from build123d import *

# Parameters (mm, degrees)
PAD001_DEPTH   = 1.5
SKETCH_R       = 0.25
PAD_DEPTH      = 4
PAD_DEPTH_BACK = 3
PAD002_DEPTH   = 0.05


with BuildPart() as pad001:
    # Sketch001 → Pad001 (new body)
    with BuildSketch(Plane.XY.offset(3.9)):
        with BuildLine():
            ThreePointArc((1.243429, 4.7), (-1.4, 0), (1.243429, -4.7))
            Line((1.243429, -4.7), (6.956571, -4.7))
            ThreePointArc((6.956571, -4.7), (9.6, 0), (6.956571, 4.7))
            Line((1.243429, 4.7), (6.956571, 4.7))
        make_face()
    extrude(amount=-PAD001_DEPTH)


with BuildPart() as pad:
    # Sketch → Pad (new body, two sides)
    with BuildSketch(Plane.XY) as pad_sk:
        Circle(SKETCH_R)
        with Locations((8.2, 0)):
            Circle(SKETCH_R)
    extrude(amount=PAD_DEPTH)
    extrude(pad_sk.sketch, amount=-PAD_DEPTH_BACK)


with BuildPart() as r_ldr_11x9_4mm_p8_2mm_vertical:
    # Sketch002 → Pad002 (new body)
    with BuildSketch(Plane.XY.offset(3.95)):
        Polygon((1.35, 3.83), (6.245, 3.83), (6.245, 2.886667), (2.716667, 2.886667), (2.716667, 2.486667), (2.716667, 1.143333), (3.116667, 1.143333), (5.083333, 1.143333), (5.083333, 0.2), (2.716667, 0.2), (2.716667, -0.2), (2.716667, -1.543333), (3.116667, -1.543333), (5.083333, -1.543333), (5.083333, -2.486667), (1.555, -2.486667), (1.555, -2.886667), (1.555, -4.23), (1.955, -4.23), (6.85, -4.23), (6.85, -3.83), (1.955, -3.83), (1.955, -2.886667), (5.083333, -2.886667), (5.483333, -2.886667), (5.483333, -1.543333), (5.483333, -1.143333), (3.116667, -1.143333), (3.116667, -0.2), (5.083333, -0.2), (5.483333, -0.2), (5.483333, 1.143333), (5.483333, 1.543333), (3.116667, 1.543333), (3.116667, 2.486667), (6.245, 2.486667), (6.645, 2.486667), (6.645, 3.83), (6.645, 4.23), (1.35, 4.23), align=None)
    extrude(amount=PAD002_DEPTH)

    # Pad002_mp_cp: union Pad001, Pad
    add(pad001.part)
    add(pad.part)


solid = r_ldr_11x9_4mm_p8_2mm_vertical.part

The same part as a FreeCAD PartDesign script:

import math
import FreeCAD as App
import Part
import Sketcher

V = App.Vector
Q = App.Units.Quantity

doc = App.newDocument("Part")
body = doc.addObject("PartDesign::Body", "Body")

sketch1 = body.newObject("Sketcher::SketchObject", "Sketch")
sketch1.AttachmentSupport = (doc.getObject("XY_Plane"), [""])
sketch1.MapMode = "FlatFace"
sketch1.AttachmentOffset = App.Placement(V(0, 0, 3.9), App.Rotation())
sketch1.addGeometry([
    Part.ArcOfCircle(Part.Circle(V(4.1, 0, 0), V(0, 0, 1), 5.5), math.radians(121.290438), math.radians(238.709562)),
    Part.LineSegment(V(1.243429, -4.7, 0), V(6.956571, -4.7, 0)),
    Part.ArcOfCircle(Part.Circle(V(4.1, 0, 0), V(0, 0, 1), 5.5), math.radians(-58.709562), math.radians(58.709562)),
    Part.LineSegment(V(6.956571, 4.7, 0), V(1.243429, 4.7, 0)),
], False)
sketch1.addConstraint([
    Sketcher.Constraint("Coincident", 0, 2, 1, 1),
    Sketcher.Constraint("Coincident", 1, 2, 2, 1),
    Sketcher.Constraint("Coincident", 2, 2, 3, 1),
    Sketcher.Constraint("Coincident", 3, 2, 0, 1),
    Sketcher.Constraint("Horizontal", 1),
    Sketcher.Constraint("Horizontal", 3),
    Sketcher.Constraint("Coincident", 2, 3, 0, 3),
    Sketcher.Constraint("Equal", 0, 2),
    Sketcher.Constraint("Symmetric", 1, 2, 2, 2, -1),
    Sketcher.Constraint("Radius", 0, Q("5.5 mm")),
    Sketcher.Constraint("DistanceX", -1, 1, 0, 3, Q("4.1 mm")),
    Sketcher.Constraint("DistanceY", 0, 2, -1, 1, Q("4.7 mm")),
])
pad1 = body.newObject("PartDesign::Pad", "Pad")
pad1.Profile = sketch1
pad1.Length = 1.5
pad1.Reversed = True
body2 = doc.addObject("PartDesign::Body", "Body001")
body2.AllowCompound = True

sketch2 = body2.newObject("Sketcher::SketchObject", "Sketch001")
sketch2.AttachmentSupport = (doc.getObject("XY_Plane001"), [""])
sketch2.MapMode = "FlatFace"
sketch2.addGeometry([
    Part.Circle(V(0, 0, 0), V(0, 0, 1), 0.25),
    Part.Circle(V(8.2, 0, 0), V(0, 0, 1), 0.25),
], False)
sketch2.addConstraint([
    Sketcher.Constraint("Coincident", 0, 3, -1, 1),
    Sketcher.Constraint("Equal", 0, 1),
    Sketcher.Constraint("PointOnObject", 1, 3, -1),
    Sketcher.Constraint("Diameter", 0, Q("0.5 mm")),
    Sketcher.Constraint("DistanceX", -1, 1, 1, 3, Q("8.2 mm")),
])
pad2 = body2.newObject("PartDesign::Pad", "Pad001")
pad2.Profile = sketch2
pad2.Type = "TwoLengths"
pad2.Length = 4
pad2.Length2 = 3
body3 = doc.addObject("PartDesign::Body", "Body002")
body3.AllowCompound = True

sketch3 = body3.newObject("Sketcher::SketchObject", "Sketch002")
sketch3.AttachmentSupport = (doc.getObject("XY_Plane002"), [""])
sketch3.MapMode = "FlatFace"
sketch3.AttachmentOffset = App.Placement(V(0, 0, 3.95), App.Rotation())
sketch3.addGeometry([
    Part.LineSegment(V(1.35, 3.83, 0), V(6.245, 3.83, 0)),
    Part.LineSegment(V(6.245, 3.83, 0), V(6.245, 2.886667, 0)),
    Part.LineSegment(V(6.245, 2.886667, 0), V(2.716667, 2.886667, 0)),
    Part.LineSegment(V(2.716667, 2.886667, 0), V(2.716667, 1.143333, 0)),
    Part.LineSegment(V(2.716667, 1.143333, 0), V(5.083333, 1.143333, 0)),
    Part.LineSegment(V(5.083333, 1.143333, 0), V(5.083333, 0.2, 0)),
    Part.LineSegment(V(5.083333, 0.2, 0), V(2.716667, 0.2, 0)),
    Part.LineSegment(V(2.716667, 0.2, 0), V(2.716667, -1.543333, 0)),
    Part.LineSegment(V(2.716667, -1.543333, 0), V(5.083333, -1.543333, 0)),
    Part.LineSegment(V(5.083333, -1.543333, 0), V(5.083333, -2.486667, 0)),
    Part.LineSegment(V(5.083333, -2.486667, 0), V(1.555, -2.486667, 0)),
    Part.LineSegment(V(1.555, -2.486667, 0), V(1.555, -4.23, 0)),
    Part.LineSegment(V(1.555, -4.23, 0), V(6.85, -4.23, 0)),
    Part.LineSegment(V(6.85, -4.23, 0), V(6.85, -3.83, 0)),
    Part.LineSegment(V(6.85, -3.83, 0), V(1.955, -3.83, 0)),
    Part.LineSegment(V(1.955, -3.83, 0), V(1.955, -2.886667, 0)),
    Part.LineSegment(V(1.955, -2.886667, 0), V(5.483333, -2.886667, 0)),
    Part.LineSegment(V(5.483333, -2.886667, 0), V(5.483333, -1.143333, 0)),
    Part.LineSegment(V(5.483333, -1.143333, 0), V(3.116667, -1.143333, 0)),
    Part.LineSegment(V(3.116667, -1.143333, 0), V(3.116667, -0.2, 0)),
    Part.LineSegment(V(3.116667, -0.2, 0), V(5.483333, -0.2, 0)),
    Part.LineSegment(V(5.483333, -0.2, 0), V(5.483333, 1.543333, 0)),
    Part.LineSegment(V(5.483333, 1.543333, 0), V(3.116667, 1.543333, 0)),
    Part.LineSegment(V(3.116667, 1.543333, 0), V(3.116667, 2.486667, 0)),
    Part.LineSegment(V(3.116667, 2.486667, 0), V(6.645, 2.486667, 0)),
    Part.LineSegment(V(6.645, 2.486667, 0), V(6.645, 4.23, 0)),
    Part.LineSegment(V(6.645, 4.23, 0), V(1.35, 4.23, 0)),
    Part.LineSegment(V(1.35, 4.23, 0), V(1.35, 3.83, 0)),
], False)
sketch3.addConstraint([
    Sketcher.Constraint("Coincident", 0, 2, 1, 1),
    Sketcher.Constraint("Coincident", 1, 2, 2, 1),
    Sketcher.Constraint("Coincident", 2, 2, 3, 1),
    Sketcher.Constraint("Coincident", 3, 2, 4, 1),
    Sketcher.Constraint("Coincident", 4, 2, 5, 1),
    Sketcher.Constraint("Coincident", 5, 2, 6, 1),
    Sketcher.Constraint("Coincident", 6, 2, 7, 1),
    Sketcher.Constraint("Coincident", 7, 2, 8, 1),
    Sketcher.Constraint("Coincident", 8, 2, 9, 1),
    Sketcher.Constraint("Coincident", 9, 2, 10, 1),
    Sketcher.Constraint("Coincident", 10, 2, 11, 1),
    Sketcher.Constraint("Coincident", 11, 2, 12, 1),
    Sketcher.Constraint("Coincident", 12, 2, 13, 1),
    Sketcher.Constraint("Coincident", 13, 2, 14, 1),
    Sketcher.Constraint("Coincident", 14, 2, 15, 1),
    Sketcher.Constraint("Coincident", 15, 2, 16, 1),
    Sketcher.Constraint("Coincident", 16, 2, 17, 1),
    Sketcher.Constraint("Coincident", 17, 2, 18, 1),
    Sketcher.Constraint("Coincident", 18, 2, 19, 1),
    Sketcher.Constraint("Coincident", 19, 2, 20, 1),
    Sketcher.Constraint("Coincident", 20, 2, 21, 1),
    Sketcher.Constraint("Coincident", 21, 2, 22, 1),
    Sketcher.Constraint("Coincident", 22, 2, 23, 1),
    Sketcher.Constraint("Coincident", 23, 2, 24, 1),
    Sketcher.Constraint("Coincident", 24, 2, 25, 1),
    Sketcher.Constraint("Coincident", 25, 2, 26, 1),
    Sketcher.Constraint("Coincident", 26, 2, 27, 1),
    Sketcher.Constraint("Coincident", 27, 2, 0, 1),
    Sketcher.Constraint("Horizontal", 0),
    Sketcher.Constraint("Vertical", 1),
    Sketcher.Constraint("Horizontal", 2),
    Sketcher.Constraint("Vertical", 3),
    Sketcher.Constraint("Horizontal", 4),
    Sketcher.Constraint("Vertical", 5),
    Sketcher.Constraint("Horizontal", 6),
    Sketcher.Constraint("Vertical", 7),
    Sketcher.Constraint("Horizontal", 8),
    Sketcher.Constraint("Vertical", 9),
    Sketcher.Constraint("Horizontal", 10),
    Sketcher.Constraint("Vertical", 11),
    Sketcher.Constraint("Horizontal", 12),
    Sketcher.Constraint("Vertical", 13),
    Sketcher.Constraint("Horizontal", 14),
    Sketcher.Constraint("Vertical", 15),
    Sketcher.Constraint("Horizontal", 16),
    Sketcher.Constraint("Vertical", 17),
    Sketcher.Constraint("Horizontal", 18),
    Sketcher.Constraint("Vertical", 19),
    Sketcher.Constraint("Horizontal", 20),
    Sketcher.Constraint("Vertical", 21),
    Sketcher.Constraint("Horizontal", 22),
    Sketcher.Constraint("Vertical", 23),
    Sketcher.Constraint("Horizontal", 24),
    Sketcher.Constraint("Vertical", 25),
    Sketcher.Constraint("Horizontal", 26),
    Sketcher.Constraint("Vertical", 27),
    Sketcher.Constraint("Vertical", 3, 2, 6, 2),
    Sketcher.Constraint("Vertical", 5, 2, 8, 2),
    Sketcher.Constraint("Vertical", 17, 2, 20, 2),
    Sketcher.Constraint("Vertical", 19, 2, 22, 2),
    Sketcher.Constraint("Equal", 2, 10),
    Sketcher.Constraint("Equal", 0, 14),
    Sketcher.Constraint("Equal", 10, 16),
    Sketcher.Constraint("Equal", 8, 18),
    Sketcher.Constraint("Equal", 16, 24),
    Sketcher.Constraint("Equal", 1, 5),
    Sketcher.Constraint("Equal", 3, 7),
    Sketcher.Constraint("Equal", 5, 9),
    Sketcher.Constraint("Equal", 7, 11),
    Sketcher.Constraint("Equal", 9, 15),
    Sketcher.Constraint("Equal", 11, 17),
    Sketcher.Constraint("Equal", 15, 19),
    Sketcher.Constraint("Equal", 17, 21),
    Sketcher.Constraint("Equal", 19, 23),
    Sketcher.Constraint("Equal", 21, 25),
    Sketcher.Constraint("DistanceY", 13, 1, 13, 2, Q("0.4 mm")),
    Sketcher.Constraint("DistanceY", -1, 1, 5, 2, Q("0.2 mm")),
    Sketcher.Constraint("DistanceY", 19, 2, -1, 1, Q("0.2 mm")),
    Sketcher.Constraint("DistanceX", 11, 2, 14, 2, Q("0.4 mm")),
    Sketcher.Constraint("DistanceX", 0, 1, 0, 2, Q("4.895 mm")),
    Sketcher.Constraint("DistanceY", -1, 1, 0, 2, Q("3.83 mm")),
    Sketcher.Constraint("DistanceX", -1, 1, 12, 2, Q("6.85 mm")),
    Sketcher.Constraint("DistanceX", -1, 1, 26, 2, Q("1.35 mm")),
    Sketcher.Constraint("DistanceX", 2, 2, 2, 1, Q("3.528333 mm")),
])
pad3 = body3.newObject("PartDesign::Pad", "Pad002")
pad3.Profile = sketch3
pad3.Length = 0.05
doc.recompute()

boolean = body3.newObject("PartDesign::Boolean", "Boolean")
boolean.Type = "Fuse"
boolean.addObjects([body])
doc.recompute()

boolean2 = body3.newObject("PartDesign::Boolean", "Boolean001")
boolean2.Type = "Fuse"
boolean2.addObjects([body2])

doc.recompute()
